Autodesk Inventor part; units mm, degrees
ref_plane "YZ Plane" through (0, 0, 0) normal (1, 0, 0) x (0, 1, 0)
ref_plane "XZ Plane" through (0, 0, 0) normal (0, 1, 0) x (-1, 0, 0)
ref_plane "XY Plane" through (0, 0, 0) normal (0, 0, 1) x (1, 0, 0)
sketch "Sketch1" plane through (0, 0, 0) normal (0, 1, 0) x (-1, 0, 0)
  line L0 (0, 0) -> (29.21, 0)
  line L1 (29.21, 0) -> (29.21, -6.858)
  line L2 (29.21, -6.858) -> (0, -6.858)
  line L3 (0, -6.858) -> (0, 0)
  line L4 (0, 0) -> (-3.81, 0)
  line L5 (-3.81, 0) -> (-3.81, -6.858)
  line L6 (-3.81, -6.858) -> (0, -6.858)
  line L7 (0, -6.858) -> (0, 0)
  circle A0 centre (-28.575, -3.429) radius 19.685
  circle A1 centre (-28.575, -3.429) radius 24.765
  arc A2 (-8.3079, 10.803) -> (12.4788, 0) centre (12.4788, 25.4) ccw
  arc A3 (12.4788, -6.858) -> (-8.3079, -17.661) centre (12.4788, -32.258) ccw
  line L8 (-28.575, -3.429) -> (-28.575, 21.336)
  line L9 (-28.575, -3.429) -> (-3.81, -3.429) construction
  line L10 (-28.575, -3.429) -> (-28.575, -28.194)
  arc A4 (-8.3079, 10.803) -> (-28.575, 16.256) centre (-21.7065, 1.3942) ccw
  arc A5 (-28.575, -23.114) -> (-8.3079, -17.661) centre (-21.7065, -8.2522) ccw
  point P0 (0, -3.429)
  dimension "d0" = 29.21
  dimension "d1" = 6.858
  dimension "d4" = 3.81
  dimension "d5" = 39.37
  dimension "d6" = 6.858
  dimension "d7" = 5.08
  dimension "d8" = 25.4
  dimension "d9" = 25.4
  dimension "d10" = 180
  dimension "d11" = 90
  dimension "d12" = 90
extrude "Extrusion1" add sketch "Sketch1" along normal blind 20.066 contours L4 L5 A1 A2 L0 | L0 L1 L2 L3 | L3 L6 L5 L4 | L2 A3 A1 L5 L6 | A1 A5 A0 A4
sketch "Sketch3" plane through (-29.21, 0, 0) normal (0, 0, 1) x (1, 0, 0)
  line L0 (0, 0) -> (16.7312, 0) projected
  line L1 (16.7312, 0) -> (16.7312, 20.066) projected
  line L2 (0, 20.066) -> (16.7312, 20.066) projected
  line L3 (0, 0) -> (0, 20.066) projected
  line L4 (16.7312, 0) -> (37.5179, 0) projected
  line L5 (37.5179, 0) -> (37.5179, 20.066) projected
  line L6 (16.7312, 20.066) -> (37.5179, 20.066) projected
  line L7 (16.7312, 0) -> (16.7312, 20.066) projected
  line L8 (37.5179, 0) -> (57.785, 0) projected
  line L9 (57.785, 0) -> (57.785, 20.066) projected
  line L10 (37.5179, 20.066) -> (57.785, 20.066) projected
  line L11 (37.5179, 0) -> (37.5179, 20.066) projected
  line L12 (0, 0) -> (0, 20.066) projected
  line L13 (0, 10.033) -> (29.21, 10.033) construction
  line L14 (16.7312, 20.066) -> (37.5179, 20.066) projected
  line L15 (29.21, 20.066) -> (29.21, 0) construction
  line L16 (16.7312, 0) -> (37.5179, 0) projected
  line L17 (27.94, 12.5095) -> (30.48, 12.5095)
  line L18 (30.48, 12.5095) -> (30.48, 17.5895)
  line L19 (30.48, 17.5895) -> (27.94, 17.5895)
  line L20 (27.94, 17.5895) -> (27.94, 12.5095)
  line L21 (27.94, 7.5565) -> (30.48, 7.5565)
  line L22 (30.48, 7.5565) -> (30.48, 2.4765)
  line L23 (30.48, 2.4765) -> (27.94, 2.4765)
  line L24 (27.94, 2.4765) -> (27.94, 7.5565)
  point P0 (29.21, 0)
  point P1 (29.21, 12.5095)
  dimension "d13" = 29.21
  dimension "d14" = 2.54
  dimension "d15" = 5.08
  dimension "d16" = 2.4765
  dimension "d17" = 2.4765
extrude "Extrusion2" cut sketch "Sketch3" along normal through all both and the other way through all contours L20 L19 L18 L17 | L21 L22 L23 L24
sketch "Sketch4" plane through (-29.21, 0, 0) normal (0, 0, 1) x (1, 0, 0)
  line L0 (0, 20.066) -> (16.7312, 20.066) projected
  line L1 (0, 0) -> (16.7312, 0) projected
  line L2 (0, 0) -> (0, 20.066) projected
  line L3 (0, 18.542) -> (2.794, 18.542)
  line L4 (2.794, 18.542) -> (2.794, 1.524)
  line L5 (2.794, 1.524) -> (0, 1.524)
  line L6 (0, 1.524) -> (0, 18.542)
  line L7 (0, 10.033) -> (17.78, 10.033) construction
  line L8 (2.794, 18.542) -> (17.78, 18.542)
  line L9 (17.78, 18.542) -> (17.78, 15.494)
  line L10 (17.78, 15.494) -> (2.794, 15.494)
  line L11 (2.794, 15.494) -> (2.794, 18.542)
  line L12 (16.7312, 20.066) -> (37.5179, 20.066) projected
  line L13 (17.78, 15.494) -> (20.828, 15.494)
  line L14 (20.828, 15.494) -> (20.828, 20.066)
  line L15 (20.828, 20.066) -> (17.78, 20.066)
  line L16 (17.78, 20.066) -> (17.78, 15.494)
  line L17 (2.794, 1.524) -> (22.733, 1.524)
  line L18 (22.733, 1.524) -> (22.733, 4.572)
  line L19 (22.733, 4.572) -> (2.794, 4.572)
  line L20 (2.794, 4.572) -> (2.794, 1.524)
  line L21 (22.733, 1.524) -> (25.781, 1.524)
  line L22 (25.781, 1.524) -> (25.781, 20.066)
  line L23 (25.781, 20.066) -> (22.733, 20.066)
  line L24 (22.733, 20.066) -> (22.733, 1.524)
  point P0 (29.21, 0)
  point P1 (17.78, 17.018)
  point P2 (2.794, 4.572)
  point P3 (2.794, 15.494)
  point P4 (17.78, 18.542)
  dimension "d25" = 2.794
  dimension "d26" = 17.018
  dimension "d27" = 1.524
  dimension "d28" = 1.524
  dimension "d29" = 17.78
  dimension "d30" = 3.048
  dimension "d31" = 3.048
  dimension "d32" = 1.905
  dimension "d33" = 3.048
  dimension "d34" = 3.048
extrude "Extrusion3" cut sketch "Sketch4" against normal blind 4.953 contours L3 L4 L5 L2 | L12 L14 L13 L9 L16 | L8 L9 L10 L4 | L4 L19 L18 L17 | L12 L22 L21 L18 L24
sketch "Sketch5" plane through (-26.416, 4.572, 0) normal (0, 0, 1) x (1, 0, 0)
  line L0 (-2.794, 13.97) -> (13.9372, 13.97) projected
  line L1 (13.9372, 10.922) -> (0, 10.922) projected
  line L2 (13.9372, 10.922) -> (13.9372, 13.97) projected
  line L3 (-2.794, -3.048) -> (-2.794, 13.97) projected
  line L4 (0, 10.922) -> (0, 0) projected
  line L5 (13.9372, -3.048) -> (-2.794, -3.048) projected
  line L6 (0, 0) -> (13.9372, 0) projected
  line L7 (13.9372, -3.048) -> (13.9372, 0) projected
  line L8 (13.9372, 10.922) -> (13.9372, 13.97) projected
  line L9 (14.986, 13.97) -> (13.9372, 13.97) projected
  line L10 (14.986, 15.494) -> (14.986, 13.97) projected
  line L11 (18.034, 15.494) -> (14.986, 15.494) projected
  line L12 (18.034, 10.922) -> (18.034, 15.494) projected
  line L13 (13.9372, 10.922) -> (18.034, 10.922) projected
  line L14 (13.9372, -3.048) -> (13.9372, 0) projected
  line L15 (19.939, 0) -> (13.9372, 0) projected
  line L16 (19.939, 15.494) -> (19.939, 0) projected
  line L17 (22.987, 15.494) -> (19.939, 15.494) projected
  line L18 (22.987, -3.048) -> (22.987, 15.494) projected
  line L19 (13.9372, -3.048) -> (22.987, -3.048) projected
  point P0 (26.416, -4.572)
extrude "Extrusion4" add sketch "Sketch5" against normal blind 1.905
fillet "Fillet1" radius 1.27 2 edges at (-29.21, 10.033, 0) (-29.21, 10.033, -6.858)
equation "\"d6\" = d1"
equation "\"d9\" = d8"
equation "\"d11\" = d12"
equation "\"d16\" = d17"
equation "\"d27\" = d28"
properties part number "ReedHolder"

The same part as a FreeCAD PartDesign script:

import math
import FreeCAD as App
import Part
import Sketcher

V = App.Vector
Q = App.Units.Quantity


def edges_at(feature, points):
    """Names of the edges that pass closest to the given points."""
    edges = feature.Shape.Edges
    near = lambda p: min(range(len(edges)), key=lambda i: edges[i].distToShape(Part.Vertex(*p))[0])
    return sorted({f"Edge{near(p) + 1}" for p in points})


def add_polygon(sketch, points):
    """Adds a closed chain of lines whose ends are joined by coincident constraints."""
    first, n = sketch.GeometryCount, len(points)
    for a, b in zip(points, points[1:] + points[:1]):
        sketch.addGeometry(Part.LineSegment(App.Vector(*a, 0), App.Vector(*b, 0)), False)
    for i in range(n):
        sketch.addConstraint(Sketcher.Constraint("Coincident", first + i, 2, first + (i + 1) % n, 1))

doc = App.newDocument("Part")
body = doc.addObject("PartDesign::Body", "Body")

# Sketch on XZ plane
sketch1 = body.newObject("Sketcher::SketchObject", "Sketch")
sketch1.AttachmentSupport = (doc.getObject("XZ_Plane"), [""])
sketch1.MapMode = "FlatFace"
sketch1.addGeometry([
    Part.ArcOfCircle(Part.Circle(V(-12, 25, 0), V(0, 0, 1), 25), math.radians(-90), math.radians(-35)),  # 0
    Part.ArcOfCircle(Part.Circle(V(22, 1, 0), V(0, 0, 1), 16), math.radians(65), math.radians(145)),  # 1
    Part.ArcOfCircle(Part.Circle(V(29, -3, 0), V(0, 0, 1), 20), math.radians(90), math.radians(270)),  # 2
    Part.ArcOfCircle(Part.Circle(V(22, -8, 0), V(0, 0, 1), 16), math.radians(-145), math.radians(-65)),  # 3
    Part.ArcOfCircle(Part.Circle(V(-12, -32, 0), V(0, 0, 1), 25), math.radians(35), math.radians(90)),  # 4
    Part.LineSegment(V(-12, -7, 0), V(-29, -7, 0)),  # 5
    Part.LineSegment(V(-29, -7, 0), V(-29, 0, 0)),  # 6
    Part.LineSegment(V(-29, 0, 0), V(-12, 0, 0)),  # 7
], False)
sketch1.addConstraint([
    Sketcher.Constraint("Tangent", 0, 2, 1, 2),
    Sketcher.Constraint("Coincident", 1, 1, 2, 1),
    Sketcher.Constraint("Coincident", 2, 2, 3, 2),
    Sketcher.Constraint("Tangent", 3, 1, 4, 1),
    Sketcher.Constraint("Tangent", 4, 2, 5, 1),
    Sketcher.Constraint("Coincident", 5, 2, 6, 1),
    Sketcher.Constraint("Coincident", 6, 2, 7, 1),
    Sketcher.Constraint("Tangent", 7, 2, 0, 1),
    Sketcher.Constraint("Horizontal", 5),
    Sketcher.Constraint("Vertical", 6),
    Sketcher.Constraint("Horizontal", 7),
    Sketcher.Constraint("Equal", 1, 3),
    Sketcher.Constraint("Equal", 0, 4),
    Sketcher.Constraint("PointOnObject", 6, 2, -1),
    Sketcher.Constraint("Vertical", 1, 3, 3, 3),
    Sketcher.Constraint("Vertical", 0, 3, 4, 3),
    Sketcher.Constraint("Vertical", 2, 3, 1, 1),
    Sketcher.Constraint("Vertical", 1, 1, 2, 2),
    Sketcher.Constraint("Radius", 0, Q("1 in")),
    Sketcher.Constraint("Radius", 2, Q("0.775 in")),
    Sketcher.Constraint("DistanceY", 6, 1, 6, 2, Q("0.27 in")),
    Sketcher.Constraint("DistanceX", 5, 2, -1, 1, Q("1.15 in")),
    Sketcher.Constraint("Radius", 1, 16.3722),
    Sketcher.Constraint("DistanceX", 5, 2, 5, 1, Q("0.6587 in")),
    Sketcher.Constraint("DistanceX", -1, 1, 2, 3, Q("1.125 in")),
])
pad1 = body.newObject("PartDesign::Pad", "Pad")
pad1.Profile = sketch1
pad1.Length = Q("0.79 in")
pad1.Reversed = True

# Sketch on XY plane
sketch2 = body.newObject("Sketcher::SketchObject", "Sketch001")
sketch2.AttachmentSupport = (doc.getObject("XY_Plane"), [""])
sketch2.MapMode = "FlatFace"
add_polygon(sketch2, [(-1.3, 17.6), (-1.3, 12.5), (1.3, 12.5), (1.3, 17.6)])  # lines 0-3
add_polygon(sketch2, [(1.3, 7.6), (-1.3, 7.6), (-1.3, 2.5), (1.3, 2.5)])  # lines 4-7
sketch2.addConstraint([
    Sketcher.Constraint("Vertical", 0),
    Sketcher.Constraint("Horizontal", 1),
    Sketcher.Constraint("Vertical", 2),
    Sketcher.Constraint("Horizontal", 3),
    Sketcher.Constraint("Horizontal", 4),
    Sketcher.Constraint("Vertical", 5),
    Sketcher.Constraint("Horizontal", 6),
    Sketcher.Constraint("Vertical", 7),
    Sketcher.Constraint("Vertical", 3, 2, 4, 2),
    Sketcher.Constraint("Vertical", 2, 2, 6, 2),
    Sketcher.Constraint("Equal", 2, 5),
    Sketcher.Constraint("DistanceX", 1, 1, 1, 2, Q("0.1 in")),
    Sketcher.Constraint("DistanceY", 0, 2, 0, 1, Q("0.2 in")),
    Sketcher.Constraint("DistanceY", -1, 1, 5, 2, Q("0.0975 in")),
    Sketcher.Constraint("DistanceX", 0, 2, -1, 1, Q("0.05 in")),
    Sketcher.Constraint("DistanceY", 4, 2, 0, 2, Q("0.195 in")),
])
pocket1 = body.newObject("PartDesign::Pocket", "Pocket")
pocket1.Profile = sketch2
pocket1.Type = "ThroughAll"
pocket1.Midplane = True

# Sketch on XY plane
sketch3 = body.newObject("Sketcher::SketchObject", "Sketch002")
sketch3.AttachmentSupport = (doc.getObject("XY_Plane"), [""])
sketch3.MapMode = "FlatFace"
add_polygon(sketch3, [(-29.2, 18.5), (-29.2, 1.5), (-3.4, 1.5), (-3.4, 20.1), (-6.5, 20.1), (-6.5, 4.6), (-26.4, 4.6), (-26.4, 15.5), (-8.4, 15.5), (-8.4, 20.1), (-11.4, 20.1), (-11.4, 18.5)])  # lines 0-11
sketch3.addConstraint([
    Sketcher.Constraint("Vertical", 0),
    Sketcher.Constraint("Horizontal", 1),
    Sketcher.Constraint("Vertical", 2),
    Sketcher.Constraint("Horizontal", 3),
    Sketcher.Constraint("Vertical", 4),
    Sketcher.Constraint("Horizontal", 5),
    Sketcher.Constraint("Vertical", 6),
    Sketcher.Constraint("Horizontal", 7),
    Sketcher.Constraint("Vertical", 8),
    Sketcher.Constraint("Horizontal", 9),
    Sketcher.Constraint("Vertical", 10),
    Sketcher.Constraint("Horizontal", 11),
    Sketcher.Constraint("Horizontal", 3, 2, 8, 2),
    Sketcher.Constraint("Equal", 3, 9),
    Sketcher.Constraint("DistanceX", 11, 2, 11, 1, Q("0.7 in")),
    Sketcher.Constraint("DistanceX", 3, 2, 3, 1, Q("0.12 in")),
    Sketcher.Constraint("DistanceY", 0, 2, 0, 1, Q("0.67 in")),
    Sketcher.Constraint("DistanceY", 10, 2, 10, 1, Q("0.06 in")),
    Sketcher.Constraint("DistanceY", -1, 1, 0, 2, Q("0.06 in")),
    Sketcher.Constraint("DistanceY", 1, 2, 4, 2, Q("0.12 in")),
    Sketcher.Constraint("DistanceX", 0, 2, 5, 2, Q("0.11 in")),
    Sketcher.Constraint("DistanceY", 7, 2, 10, 2, Q("0.12 in")),
    Sketcher.Constraint("DistanceX", 7, 2, 3, 2, Q("0.075 in")),
    Sketcher.Constraint("DistanceX", 0, 2, -1, 1, Q("1.15 in")),
])
pocket2 = body.newObject("PartDesign::Pocket", "Pocket001")
pocket2.Profile = sketch3
pocket2.Length = Q("0.195 in")

# Sketch on XY plane
sketch4 = body.newObject("Sketcher::SketchObject", "Sketch003")
sketch4.AttachmentSupport = (doc.getObject("XY_Plane"), [""])
sketch4.MapMode = "FlatFace"
add_polygon(sketch4, [(-29.2, 18.5), (-29.2, 1.5), (-3.4, 1.5), (-3.4, 20.1), (-6.5, 20.1), (-6.5, 4.6), (-26.4, 4.6), (-26.4, 15.5), (-8.4, 15.5), (-8.4, 20.1), (-11.4, 20.1), (-11.4, 18.5)])  # lines 0-11
sketch4.addConstraint([
    Sketcher.Constraint("Vertical", 0),
    Sketcher.Constraint("Horizontal", 1),
    Sketcher.Constraint("Vertical", 2),
    Sketcher.Constraint("Horizontal", 3),
    Sketcher.Constraint("Vertical", 4),
    Sketcher.Constraint("Horizontal", 5),
    Sketcher.Constraint("Vertical", 6),
    Sketcher.Constraint("Horizontal", 7),
    Sketcher.Constraint("Vertical", 8),
    Sketcher.Constraint("Horizontal", 9),
    Sketcher.Constraint("Vertical", 10),
    Sketcher.Constraint("Horizontal", 11),
    Sketcher.Constraint("Horizontal", 3, 2, 8, 2),
    Sketcher.Constraint("Equal", 3, 9),
    Sketcher.Constraint("DistanceX", 11, 2, 11, 1, Q("0.7 in")),
    Sketcher.Constraint("DistanceX", 3, 2, 3, 1, Q("0.12 in")),
    Sketcher.Constraint("DistanceX", 7, 1, 7, 2, Q("0.71 in")),
    Sketcher.Constraint("DistanceY", 0, 2, 0, 1, Q("0.67 in")),
    Sketcher.Constraint("DistanceY", 2, 1, 2, 2, Q("0.73 in")),
    Sketcher.Constraint("DistanceY", 4, 2, 4, 1, Q("0.61 in")),
    Sketcher.Constraint("DistanceY", 6, 1, 6, 2, Q("0.43 in")),
    Sketcher.Constraint("DistanceX", 1, 1, 1, 2, Q("1.015 in")),
    Sketcher.Constraint("DistanceX", 0, 2, -1, 1, Q("1.15 in")),
    Sketcher.Constraint("DistanceY", -1, 1, 0, 2, Q("0.06 in")),
])
pad2 = body.newObject("PartDesign::Pad", "Pad001")
pad2.Profile = sketch4
pad2.Length = Q("0.075 in")
pad2.Reversed = True
doc.recompute()

fillet = body.newObject("PartDesign::Fillet", "Fillet")
fillet.Base = (pad2, edges_at(pad2, [(-29.21, 10.033, 0), (-29.21, 10.033, -6.858)]))
fillet.Radius = Q("0.05 in")

doc.recompute()
